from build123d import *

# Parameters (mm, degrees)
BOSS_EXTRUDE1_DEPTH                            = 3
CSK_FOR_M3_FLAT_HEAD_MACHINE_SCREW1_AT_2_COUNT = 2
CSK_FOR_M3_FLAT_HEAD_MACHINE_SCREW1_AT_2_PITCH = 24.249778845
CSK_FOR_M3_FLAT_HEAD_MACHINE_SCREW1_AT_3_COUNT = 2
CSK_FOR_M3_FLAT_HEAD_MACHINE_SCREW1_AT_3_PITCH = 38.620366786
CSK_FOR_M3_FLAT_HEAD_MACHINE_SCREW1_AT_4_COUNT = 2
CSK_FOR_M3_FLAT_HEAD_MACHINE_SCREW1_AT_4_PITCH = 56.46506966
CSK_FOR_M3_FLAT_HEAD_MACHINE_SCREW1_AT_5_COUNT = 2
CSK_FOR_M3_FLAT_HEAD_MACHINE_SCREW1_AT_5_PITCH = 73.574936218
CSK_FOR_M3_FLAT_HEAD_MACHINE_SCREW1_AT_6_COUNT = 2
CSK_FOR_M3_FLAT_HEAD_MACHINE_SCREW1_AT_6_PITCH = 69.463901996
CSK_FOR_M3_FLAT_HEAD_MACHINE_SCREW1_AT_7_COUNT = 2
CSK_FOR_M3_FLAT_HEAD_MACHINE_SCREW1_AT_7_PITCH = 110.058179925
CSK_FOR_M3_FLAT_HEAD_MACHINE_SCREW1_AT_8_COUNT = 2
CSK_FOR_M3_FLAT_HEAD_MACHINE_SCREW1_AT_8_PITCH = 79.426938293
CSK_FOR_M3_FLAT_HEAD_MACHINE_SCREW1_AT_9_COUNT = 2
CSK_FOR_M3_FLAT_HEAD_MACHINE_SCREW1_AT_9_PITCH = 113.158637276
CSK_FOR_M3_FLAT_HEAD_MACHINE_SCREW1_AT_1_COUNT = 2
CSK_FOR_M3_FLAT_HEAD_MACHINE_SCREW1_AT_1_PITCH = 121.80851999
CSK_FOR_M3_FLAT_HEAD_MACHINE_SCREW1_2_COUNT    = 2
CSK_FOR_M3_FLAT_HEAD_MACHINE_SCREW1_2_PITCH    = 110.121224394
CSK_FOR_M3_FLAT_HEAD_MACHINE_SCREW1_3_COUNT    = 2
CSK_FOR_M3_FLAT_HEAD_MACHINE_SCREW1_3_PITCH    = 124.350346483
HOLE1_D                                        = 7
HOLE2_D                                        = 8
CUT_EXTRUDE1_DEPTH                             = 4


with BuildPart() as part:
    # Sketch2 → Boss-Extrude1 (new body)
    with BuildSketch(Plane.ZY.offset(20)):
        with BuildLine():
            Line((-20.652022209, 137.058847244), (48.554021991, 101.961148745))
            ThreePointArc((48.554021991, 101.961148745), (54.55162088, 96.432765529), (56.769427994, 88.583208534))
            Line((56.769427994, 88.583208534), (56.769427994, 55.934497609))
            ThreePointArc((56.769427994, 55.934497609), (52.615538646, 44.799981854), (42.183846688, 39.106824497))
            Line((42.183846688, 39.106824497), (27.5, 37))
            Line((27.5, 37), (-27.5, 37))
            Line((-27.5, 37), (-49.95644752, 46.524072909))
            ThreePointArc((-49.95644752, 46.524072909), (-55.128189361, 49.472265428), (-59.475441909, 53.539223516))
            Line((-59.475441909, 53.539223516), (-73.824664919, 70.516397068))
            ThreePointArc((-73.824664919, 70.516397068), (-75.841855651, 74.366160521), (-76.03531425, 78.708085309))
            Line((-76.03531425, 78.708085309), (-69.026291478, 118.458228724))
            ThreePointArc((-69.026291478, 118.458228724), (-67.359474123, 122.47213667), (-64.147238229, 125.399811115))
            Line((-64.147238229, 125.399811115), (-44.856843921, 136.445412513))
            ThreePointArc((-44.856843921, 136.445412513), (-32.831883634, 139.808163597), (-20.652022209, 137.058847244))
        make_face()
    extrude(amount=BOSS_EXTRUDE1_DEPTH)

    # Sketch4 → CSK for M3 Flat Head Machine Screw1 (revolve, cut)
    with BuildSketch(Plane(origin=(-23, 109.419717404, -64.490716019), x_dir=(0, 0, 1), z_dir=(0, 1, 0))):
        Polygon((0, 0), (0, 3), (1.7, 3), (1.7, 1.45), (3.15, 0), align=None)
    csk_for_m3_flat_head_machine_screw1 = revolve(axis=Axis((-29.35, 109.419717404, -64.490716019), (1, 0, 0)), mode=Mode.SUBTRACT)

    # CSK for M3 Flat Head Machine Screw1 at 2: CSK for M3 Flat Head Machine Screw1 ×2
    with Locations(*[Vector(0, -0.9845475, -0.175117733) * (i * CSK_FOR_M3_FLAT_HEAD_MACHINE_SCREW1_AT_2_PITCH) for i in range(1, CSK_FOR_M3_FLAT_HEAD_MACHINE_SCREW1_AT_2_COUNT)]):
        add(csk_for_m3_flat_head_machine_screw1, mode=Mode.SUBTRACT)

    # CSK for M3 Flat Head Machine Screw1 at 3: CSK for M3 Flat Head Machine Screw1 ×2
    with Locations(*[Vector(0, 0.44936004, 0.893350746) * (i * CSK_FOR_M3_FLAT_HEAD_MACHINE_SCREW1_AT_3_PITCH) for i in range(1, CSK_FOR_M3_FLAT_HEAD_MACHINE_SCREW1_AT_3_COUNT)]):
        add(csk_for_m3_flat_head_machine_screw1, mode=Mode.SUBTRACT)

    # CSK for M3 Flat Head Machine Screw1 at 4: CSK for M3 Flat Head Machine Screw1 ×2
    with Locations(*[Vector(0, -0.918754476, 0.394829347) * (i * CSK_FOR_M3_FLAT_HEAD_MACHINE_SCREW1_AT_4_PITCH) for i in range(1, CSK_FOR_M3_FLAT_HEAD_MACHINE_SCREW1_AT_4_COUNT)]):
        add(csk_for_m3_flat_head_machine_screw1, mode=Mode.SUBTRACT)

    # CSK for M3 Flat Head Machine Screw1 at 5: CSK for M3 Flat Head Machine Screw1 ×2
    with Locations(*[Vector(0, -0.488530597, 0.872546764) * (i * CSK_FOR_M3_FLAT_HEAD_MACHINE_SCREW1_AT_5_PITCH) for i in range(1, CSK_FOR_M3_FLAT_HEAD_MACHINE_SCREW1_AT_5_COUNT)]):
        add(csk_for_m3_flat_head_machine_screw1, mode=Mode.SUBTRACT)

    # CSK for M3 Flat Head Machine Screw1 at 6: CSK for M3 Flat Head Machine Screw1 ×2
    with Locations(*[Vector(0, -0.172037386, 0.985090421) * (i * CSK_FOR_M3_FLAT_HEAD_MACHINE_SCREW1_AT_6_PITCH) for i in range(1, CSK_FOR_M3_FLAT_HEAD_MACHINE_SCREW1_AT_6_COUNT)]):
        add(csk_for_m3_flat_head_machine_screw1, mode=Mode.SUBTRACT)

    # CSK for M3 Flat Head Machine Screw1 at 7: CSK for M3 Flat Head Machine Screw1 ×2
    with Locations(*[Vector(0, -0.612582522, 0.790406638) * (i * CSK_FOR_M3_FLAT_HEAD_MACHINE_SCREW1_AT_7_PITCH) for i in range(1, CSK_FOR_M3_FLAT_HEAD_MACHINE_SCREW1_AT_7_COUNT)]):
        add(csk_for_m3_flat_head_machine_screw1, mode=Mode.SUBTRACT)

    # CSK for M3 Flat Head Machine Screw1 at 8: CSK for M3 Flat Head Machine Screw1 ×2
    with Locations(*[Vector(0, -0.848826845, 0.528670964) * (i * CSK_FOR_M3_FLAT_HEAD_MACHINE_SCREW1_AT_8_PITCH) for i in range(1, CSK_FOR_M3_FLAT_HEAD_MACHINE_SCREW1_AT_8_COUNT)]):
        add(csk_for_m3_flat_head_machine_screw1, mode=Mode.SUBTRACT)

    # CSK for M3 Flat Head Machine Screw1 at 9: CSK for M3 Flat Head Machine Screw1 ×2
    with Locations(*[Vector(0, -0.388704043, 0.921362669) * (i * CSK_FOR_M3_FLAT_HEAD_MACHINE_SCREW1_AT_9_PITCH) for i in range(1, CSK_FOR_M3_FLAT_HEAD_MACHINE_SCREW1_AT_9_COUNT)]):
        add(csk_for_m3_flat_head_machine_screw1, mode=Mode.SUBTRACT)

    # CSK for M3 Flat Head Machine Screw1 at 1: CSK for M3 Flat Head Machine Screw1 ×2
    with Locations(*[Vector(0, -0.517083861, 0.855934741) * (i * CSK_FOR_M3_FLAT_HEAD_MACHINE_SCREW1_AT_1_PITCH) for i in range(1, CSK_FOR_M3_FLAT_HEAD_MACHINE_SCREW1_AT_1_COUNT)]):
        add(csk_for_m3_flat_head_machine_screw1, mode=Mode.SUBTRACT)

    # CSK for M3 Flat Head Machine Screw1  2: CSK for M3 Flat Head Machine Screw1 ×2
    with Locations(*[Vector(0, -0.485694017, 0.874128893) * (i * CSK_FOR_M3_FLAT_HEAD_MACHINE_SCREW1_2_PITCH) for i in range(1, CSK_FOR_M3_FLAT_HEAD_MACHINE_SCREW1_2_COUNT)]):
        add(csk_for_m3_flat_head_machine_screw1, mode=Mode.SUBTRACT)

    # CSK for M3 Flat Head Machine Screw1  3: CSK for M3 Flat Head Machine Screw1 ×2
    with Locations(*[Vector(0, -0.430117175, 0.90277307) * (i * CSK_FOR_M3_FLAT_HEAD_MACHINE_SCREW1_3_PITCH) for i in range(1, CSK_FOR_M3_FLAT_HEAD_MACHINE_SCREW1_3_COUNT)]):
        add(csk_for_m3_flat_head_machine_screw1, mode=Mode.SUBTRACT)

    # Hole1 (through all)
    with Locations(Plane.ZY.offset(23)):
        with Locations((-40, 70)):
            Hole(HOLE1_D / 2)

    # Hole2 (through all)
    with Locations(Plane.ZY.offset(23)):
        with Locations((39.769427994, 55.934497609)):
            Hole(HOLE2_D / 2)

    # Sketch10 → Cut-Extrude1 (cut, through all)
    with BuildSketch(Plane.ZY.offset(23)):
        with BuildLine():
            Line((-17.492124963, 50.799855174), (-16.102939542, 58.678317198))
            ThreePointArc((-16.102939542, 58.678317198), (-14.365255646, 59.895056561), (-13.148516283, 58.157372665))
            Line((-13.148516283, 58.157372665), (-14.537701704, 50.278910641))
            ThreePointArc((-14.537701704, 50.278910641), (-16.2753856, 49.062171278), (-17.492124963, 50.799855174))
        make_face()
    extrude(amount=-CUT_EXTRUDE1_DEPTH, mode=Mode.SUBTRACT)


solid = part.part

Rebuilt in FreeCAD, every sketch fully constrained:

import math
import FreeCAD as App
import Part
import Sketcher
Q = App.Units.Quantity


def add_polygon(sketch, points):
    """Adds a closed chain of lines whose ends are joined by coincident constraints."""
    first, n = sketch.GeometryCount, len(points)
    for a, b in zip(points, points[1:] + points[:1]):
        sketch.addGeometry(Part.LineSegment(App.Vector(*a, 0), App.Vector(*b, 0)), False)
    for i in range(n):
        sketch.addConstraint(Sketcher.Constraint("Coincident", first + i, 2, first + (i + 1) % n, 1))

doc = App.newDocument("Part")
body = doc.addObject("PartDesign::Body", "Body")

# Sketch on YZ plane
sketch1 = body.newObject("Sketcher::SketchObject", "Sketch")
sketch1.AttachmentSupport = (doc.getObject("YZ_Plane"), [""])
sketch1.MapMode = "FlatFace"
sketch1.AttachmentOffset = App.Placement(App.Vector(0, 0, -20), App.Rotation())
sketch1.addGeometry([
    Part.LineSegment(App.Vector(101.961149, 48.554022, 0), App.Vector(137.058847, -20.652022, 0)),  # 0
    Part.ArcOfCircle(Part.Circle(App.Vector(114.316349, -32.185832, 0), App.Vector(0, 0, 1), 25.5), math.radians(-29.795277), math.radians(26.891748)),  # 1
    Part.LineSegment(App.Vector(136.445413, -44.856844, 0), App.Vector(125.399811, -64.147238, 0)),  # 2
    Part.ArcOfCircle(Part.Circle(App.Vector(116.721747, -59.178214, 0), App.Vector(0, 0, 1), 10), math.radians(-80), math.radians(-29.795277)),  # 3
    Part.LineSegment(App.Vector(118.458229, -69.026291, 0), App.Vector(78.708085, -76.035314, 0)),  # 4
    Part.ArcOfCircle(Part.Circle(App.Vector(76.971604, -66.187237, 0), App.Vector(0, 0, 1), 10), math.radians(-130.204723), math.radians(-80)),  # 5
    Part.LineSegment(App.Vector(70.516397, -73.824665, 0), App.Vector(53.539224, -59.475442, 0)),  # 6
    Part.ArcOfCircle(Part.Circle(App.Vector(70, -40, 0), App.Vector(0, 0, 1), 25.5), math.radians(-157.017564), math.radians(-130.204723)),  # 7
    Part.LineSegment(App.Vector(46.524073, -49.956448, 0), App.Vector(37, -27.5, 0)),  # 8
    Part.LineSegment(App.Vector(37, -27.5, 0), App.Vector(37, 27.5, 0)),  # 9
    Part.LineSegment(App.Vector(37, 27.5, 0), App.Vector(39.106824, 42.183847, 0)),  # 10
    Part.ArcOfCircle(Part.Circle(App.Vector(55.934498, 39.769428, 0), App.Vector(0, 0, 1), 17), math.radians(90), math.radians(171.83498)),  # 11
    Part.LineSegment(App.Vector(55.934498, 56.769428, 0), App.Vector(88.583209, 56.769428, 0)),  # 12
    Part.ArcOfCircle(Part.Circle(App.Vector(88.583209, 41.769428, 0), App.Vector(0, 0, 1), 15), math.radians(26.891748), math.radians(90)),  # 13
], False)
sketch1.addConstraint([
    Sketcher.Constraint("Tangent", 0, 2, 1, 2),
    Sketcher.Constraint("Tangent", 1, 1, 2, 1),
    Sketcher.Constraint("Tangent", 2, 2, 3, 2),
    Sketcher.Constraint("Tangent", 3, 1, 4, 1),
    Sketcher.Constraint("Tangent", 4, 2, 5, 2),
    Sketcher.Constraint("Tangent", 5, 1, 6, 1),
    Sketcher.Constraint("Tangent", 6, 2, 7, 2),
    Sketcher.Constraint("Tangent", 7, 1, 8, 1),
    Sketcher.Constraint("Coincident", 8, 2, 9, 1),
    Sketcher.Constraint("Coincident", 9, 2, 10, 1),
    Sketcher.Constraint("Tangent", 10, 2, 11, 2),
    Sketcher.Constraint("Tangent", 11, 1, 12, 1),
    Sketcher.Constraint("Tangent", 12, 2, 13, 2),
    Sketcher.Constraint("Tangent", 13, 1, 0, 1),
    Sketcher.Constraint("Vertical", 9),
    Sketcher.Constraint("Horizontal", 12),
    Sketcher.Constraint("Equal", 3, 5),
    Sketcher.Constraint("Equal", 1, 7),
    Sketcher.Constraint("Equal", 2, 6),
    Sketcher.Constraint("Radius", 3, 10.0),
    Sketcher.Constraint("Radius", 11, 17.0),
    Sketcher.Constraint("Radius", 13, 15.0),
    Sketcher.Constraint("Radius", 1, 25.5),
    Sketcher.Constraint("DistanceY", 9, 1, 9, 2, 55.0),
    Sketcher.Constraint("Angle", 4, Q("-170 deg")),
    Sketcher.Constraint("DistanceX", -1, 1, 7, 3, 70.0),
    Sketcher.Constraint("DistanceY", 7, 3, -1, 1, 40.0),
    Sketcher.Constraint("DistanceX", -1, 1, 8, 2, 37.0),
    Sketcher.Constraint("DistanceY", 8, 2, -1, 1, 27.5),
    Sketcher.Constraint("DistanceY", 5, 3, 2, 2, 2.039998),
    Sketcher.Constraint("DistanceX", 12, 1, 12, 2, 32.648711),
    Sketcher.Constraint("DistanceX", 1, 3, 3, 3, 2.405398),
    Sketcher.Constraint("DistanceX", 1, 3, 0, 2, 22.742498),
    Sketcher.Constraint("DistanceX", 2, 2, 1, 1, 11.045601),
    Sketcher.Constraint("Distance", 10, 14.834219),
    Sketcher.Constraint("DistanceX", -1, 1, 1, 3, 114.316349),
])
pad1 = body.newObject("PartDesign::Pad", "Pad")
pad1.Profile = sketch1
pad1.Length = 3
pad1.Reversed = True

# Sketch on XZ plane
sketch2 = body.newObject("Sketcher::SketchObject", "Sketch001")
sketch2.AttachmentSupport = (doc.getObject("XZ_Plane"), [""])
sketch2.MapMode = "FlatFace"
sketch2.AttachmentOffset = App.Placement(App.Vector(0, 0, -109.419717), App.Rotation())
add_polygon(sketch2, [(-20, -64.490716), (-23, -64.490716), (-23, -61.340716), (-21.55, -62.790716), (-20, -62.790716)])  # lines 0-4
sketch2.addGeometry(Part.LineSegment(App.Vector(-23, -64.490716, 0), App.Vector(-20, -64.490716, 0)), True)  # axis
sketch2.addConstraint([
    Sketcher.Constraint("Horizontal", 0),
    Sketcher.Constraint("Vertical", 1),
    Sketcher.Constraint("Horizontal", 3),
    Sketcher.Constraint("Vertical", 4),
    Sketcher.Constraint("Horizontal", 5),
    Sketcher.Constraint("Coincident", 5, 1, 0, 2),
    Sketcher.Constraint("Vertical", 3, 2, 5, 2),
    Sketcher.Constraint("DistanceX", 0, 2, 0, 1, 3.0),
    Sketcher.Constraint("Angle", 2, Q("-45 deg")),
    Sketcher.Constraint("DistanceY", 4, 2, 4, 1, 1.7),
    Sketcher.Constraint("DistanceX", 0, 2, -1, 1, 23.0),
    Sketcher.Constraint("DistanceX", 3, 1, 3, 2, 1.55),
    Sketcher.Constraint("DistanceY", 0, 2, -1, 1, 64.490716),
])
groove = body.newObject("PartDesign::Groove", "Groove")
groove.Profile = sketch2
groove.ReferenceAxis = (sketch2, ["Axis0"])
groove.Angle = 360
doc.recompute()

datumline = body.newObject("PartDesign::Line", "DatumLine")
datumline.Placement = App.Placement(App.Vector(0, 0, 0), App.Rotation(App.Vector(0, 0, 1), App.Vector(0, -0.9845475, -0.175117733)))
linearpattern = body.newObject("PartDesign::LinearPattern", "LinearPattern")
linearpattern.Originals = [groove]
linearpattern.Direction = (datumline, [""])
linearpattern.Mode = "offset"
linearpattern.Offset = 24.249779
linearpattern.Occurrences = 2
body.Tip = linearpattern
doc.recompute()

datumline2 = body.newObject("PartDesign::Line", "DatumLine001")
datumline2.Placement = App.Placement(App.Vector(0, 0, 0), App.Rotation(App.Vector(0, 0, 1), App.Vector(0, 0.44936004, 0.893350746)))
linearpattern2 = body.newObject("PartDesign::LinearPattern", "LinearPattern001")
linearpattern2.Originals = [groove]
linearpattern2.Direction = (datumline2, [""])
linearpattern2.Mode = "offset"
linearpattern2.Offset = 38.620367
linearpattern2.Occurrences = 2
body.Tip = linearpattern2
doc.recompute()

datumline3 = body.newObject("PartDesign::Line", "DatumLine002")
datumline3.Placement = App.Placement(App.Vector(0, 0, 0), App.Rotation(App.Vector(0, 0, 1), App.Vector(0, -0.918754476, 0.394829347)))
linearpattern3 = body.newObject("PartDesign::LinearPattern", "LinearPattern002")
linearpattern3.Originals = [groove]
linearpattern3.Direction = (datumline3, [""])
linearpattern3.Mode = "offset"
linearpattern3.Offset = 56.46507
linearpattern3.Occurrences = 2
body.Tip = linearpattern3
doc.recompute()

datumline4 = body.newObject("PartDesign::Line", "DatumLine003")
datumline4.Placement = App.Placement(App.Vector(0, 0, 0), App.Rotation(App.Vector(0, 0, 1), App.Vector(0, -0.488530597, 0.872546764)))
linearpattern4 = body.newObject("PartDesign::LinearPattern", "LinearPattern003")
linearpattern4.Originals = [groove]
linearpattern4.Direction = (datumline4, [""])
linearpattern4.Mode = "offset"
linearpattern4.Offset = 73.574936
linearpattern4.Occurrences = 2
body.Tip = linearpattern4
doc.recompute()

datumline5 = body.newObject("PartDesign::Line", "DatumLine004")
datumline5.Placement = App.Placement(App.Vector(0, 0, 0), App.Rotation(App.Vector(0, 0, 1), App.Vector(0, -0.172037386, 0.985090421)))
linearpattern5 = body.newObject("PartDesign::LinearPattern", "LinearPattern004")
linearpattern5.Originals = [groove]
linearpattern5.Direction = (datumline5, [""])
linearpattern5.Mode = "offset"
linearpattern5.Offset = 69.463902
linearpattern5.Occurrences = 2
body.Tip = linearpattern5
doc.recompute()

datumline6 = body.newObject("PartDesign::Line", "DatumLine005")
datumline6.Placement = App.Placement(App.Vector(0, 0, 0), App.Rotation(App.Vector(0, 0, 1), App.Vector(0, -0.612582522, 0.790406638)))
linearpattern6 = body.newObject("PartDesign::LinearPattern", "LinearPattern005")
linearpattern6.Originals = [groove]
linearpattern6.Direction = (datumline6, [""])
linearpattern6.Mode = "offset"
linearpattern6.Offset = 110.05818
linearpattern6.Occurrences = 2
body.Tip = linearpattern6
doc.recompute()

datumline7 = body.newObject("PartDesign::Line", "DatumLine006")
datumline7.Placement = App.Placement(App.Vector(0, 0, 0), App.Rotation(App.Vector(0, 0, 1), App.Vector(0, -0.848826845, 0.528670964)))
linearpattern7 = body.newObject("PartDesign::LinearPattern", "LinearPattern006")
linearpattern7.Originals = [groove]
linearpattern7.Direction = (datumline7, [""])
linearpattern7.Mode = "offset"
linearpattern7.Offset = 79.426938
linearpattern7.Occurrences = 2
body.Tip = linearpattern7
doc.recompute()

datumline8 = body.newObject("PartDesign::Line", "DatumLine007")
datumline8.Placement = App.Placement(App.Vector(0, 0, 0), App.Rotation(App.Vector(0, 0, 1), App.Vector(0, -0.388704043, 0.921362669)))
linearpattern8 = body.newObject("PartDesign::LinearPattern", "LinearPattern007")
linearpattern8.Originals = [groove]
linearpattern8.Direction = (datumline8, [""])
linearpattern8.Mode = "offset"
linearpattern8.Offset = 113.158637
linearpattern8.Occurrences = 2
body.Tip = linearpattern8
doc.recompute()

datumline9 = body.newObject("PartDesign::Line", "DatumLine008")
datumline9.Placement = App.Placement(App.Vector(0, 0, 0), App.Rotation(App.Vector(0, 0, 1), App.Vector(0, -0.517083861, 0.855934741)))
linearpattern9 = body.newObject("PartDesign::LinearPattern", "LinearPattern008")
linearpattern9.Originals = [groove]
linearpattern9.Direction = (datumline9, [""])
linearpattern9.Mode = "offset"
linearpattern9.Offset = 121.80852
linearpattern9.Occurrences = 2
body.Tip = linearpattern9
doc.recompute()

datumline10 = body.newObject("PartDesign::Line", "DatumLine009")
datumline10.Placement = App.Placement(App.Vector(0, 0, 0), App.Rotation(App.Vector(0, 0, 1), App.Vector(0, -0.485694017, 0.874128893)))
linearpattern10 = body.newObject("PartDesign::LinearPattern", "LinearPattern009")
linearpattern10.Originals = [groove]
linearpattern10.Direction = (datumline10, [""])
linearpattern10.Mode = "offset"
linearpattern10.Offset = 110.121224
linearpattern10.Occurrences = 2
body.Tip = linearpattern10
doc.recompute()

datumline11 = body.newObject("PartDesign::Line", "DatumLine010")
datumline11.Placement = App.Placement(App.Vector(0, 0, 0), App.Rotation(App.Vector(0, 0, 1), App.Vector(0, -0.430117175, 0.90277307)))
linearpattern11 = body.newObject("PartDesign::LinearPattern", "LinearPattern010")
linearpattern11.Originals = [groove]
linearpattern11.Direction = (datumline11, [""])
linearpattern11.Mode = "offset"
linearpattern11.Offset = 124.350346
linearpattern11.Occurrences = 2
body.Tip = linearpattern11

# Sketch on YZ plane
sketch3 = body.newObject("Sketcher::SketchObject", "Sketch002")
sketch3.AttachmentSupport = (doc.getObject("YZ_Plane"), [""])
sketch3.MapMode = "FlatFace"
sketch3.AttachmentOffset = App.Placement(App.Vector(0, 0, -23), App.Rotation())
sketch3.addGeometry(Part.Circle(App.Vector(70, -40, 0), App.Vector(0, 0, 1), 3.5), False)
sketch3.addConstraint([
    Sketcher.Constraint("Diameter", 0, 7.0),
    Sketcher.Constraint("DistanceX", -1, 1, 0, 3, 70.0),
    Sketcher.Constraint("DistanceY", 0, 3, -1, 1, 40.0),
])
doc.recompute()
hole = body.newObject("PartDesign::Hole", "Hole")
hole.Profile = sketch3
hole.ThreadType = "None"
hole.Diameter = 7
hole.DepthType = "ThroughAll"
hole.Reversed = True

# Sketch on YZ plane
sketch4 = body.newObject("Sketcher::SketchObject", "Sketch003")
sketch4.AttachmentSupport = (doc.getObject("YZ_Plane"), [""])
sketch4.MapMode = "FlatFace"
sketch4.AttachmentOffset = App.Placement(App.Vector(0, 0, -23), App.Rotation())
sketch4.addGeometry(Part.Circle(App.Vector(55.934498, 39.769428, 0), App.Vector(0, 0, 1), 4), False)
sketch4.addConstraint([
    Sketcher.Constraint("Diameter", 0, 8.0),
    Sketcher.Constraint("DistanceX", -1, 1, 0, 3, 55.934498),
    Sketcher.Constraint("DistanceY", -1, 1, 0, 3, 39.769428),
])
doc.recompute()
hole2 = body.newObject("PartDesign::Hole", "Hole001")
hole2.Profile = sketch4
hole2.ThreadType = "None"
hole2.Diameter = 8
hole2.DepthType = "ThroughAll"
hole2.Reversed = True

# Sketch on YZ plane
sketch5 = body.newObject("Sketcher::SketchObject", "Sketch004")
sketch5.AttachmentSupport = (doc.getObject("YZ_Plane"), [""])
sketch5.MapMode = "FlatFace"
sketch5.AttachmentOffset = App.Placement(App.Vector(0, 0, -23), App.Rotation())
sketch5.addGeometry([
    Part.LineSegment(App.Vector(58.678317, -16.10294, 0), App.Vector(50.799855, -17.492125, 0)),
    Part.ArcOfCircle(Part.Circle(App.Vector(50.539383, -16.014913, 0), App.Vector(0, 0, 1), 1.5), math.radians(100), math.radians(280)),
    Part.LineSegment(App.Vector(50.278911, -14.537702, 0), App.Vector(58.157373, -13.148516, 0)),
    Part.ArcOfCircle(Part.Circle(App.Vector(58.417845, -14.625728, 0), App.Vector(0, 0, 1), 1.5), math.radians(-80), math.radians(100)),
], False)
sketch5.addConstraint([
    Sketcher.Constraint("Tangent", 0, 2, 1, 2),
    Sketcher.Constraint("Tangent", 1, 1, 2, 1),
    Sketcher.Constraint("Tangent", 2, 2, 3, 2),
    Sketcher.Constraint("Tangent", 3, 1, 0, 1),
    Sketcher.Constraint("Equal", 1, 3),
    Sketcher.Constraint("Radius", 1, 1.5),
    Sketcher.Constraint("Angle", 0, Q("-170 deg")),
    Sketcher.Constraint("Distance", 0, 8.0),
    Sketcher.Constraint("DistanceY", 1, 1, -1, 1, 14.537702),
    Sketcher.Constraint("DistanceX", -1, 1, 1, 1, 50.278911),
])
pocket1 = body.newObject("PartDesign::Pocket", "Pocket")
pocket1.Profile = sketch5
pocket1.Type = "ThroughAll"
pocket1.Reversed = True

doc.recompute()
